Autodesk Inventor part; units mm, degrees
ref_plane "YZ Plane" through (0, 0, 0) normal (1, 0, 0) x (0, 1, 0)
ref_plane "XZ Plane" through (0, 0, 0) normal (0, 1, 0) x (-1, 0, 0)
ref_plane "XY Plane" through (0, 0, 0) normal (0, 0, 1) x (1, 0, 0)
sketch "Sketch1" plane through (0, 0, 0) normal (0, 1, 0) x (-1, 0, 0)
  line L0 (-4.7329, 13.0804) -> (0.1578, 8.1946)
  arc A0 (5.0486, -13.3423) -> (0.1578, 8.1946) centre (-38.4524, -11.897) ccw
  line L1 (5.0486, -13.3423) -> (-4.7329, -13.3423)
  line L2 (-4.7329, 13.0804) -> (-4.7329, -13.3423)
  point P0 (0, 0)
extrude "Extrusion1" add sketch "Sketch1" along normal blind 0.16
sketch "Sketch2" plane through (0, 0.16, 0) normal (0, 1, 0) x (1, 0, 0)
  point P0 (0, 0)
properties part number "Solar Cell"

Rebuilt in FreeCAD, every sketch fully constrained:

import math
import FreeCAD as App
import Part
import Sketcher
Q = App.Units.Quantity

doc = App.newDocument("Part")
params = doc.addObject("Spreadsheet::Sheet", "Params")
for row, (alias, value) in enumerate([
    ("pad1_length", "0.16 mm"),
], start=1):
    params.set(f"A{row}", alias)
    params.set(f"B{row}", "=" + value)
    params.setAlias(f"B{row}", alias)

body = doc.addObject("PartDesign::Body", "Body")

sketch1 = body.newObject("Sketcher::SketchObject", "Sketch")
sketch1.AttachmentSupport = (doc.getObject("XZ_Plane"), [""])
sketch1.MapMode = "FlatFace"
sketch1.addGeometry([
    Part.LineSegment(App.Vector(0, 8, 0), App.Vector(5, 13, 0)),
    Part.LineSegment(App.Vector(5, 13, 0), App.Vector(5, -13, 0)),
    Part.LineSegment(App.Vector(5, -13, 0), App.Vector(-5, -13, 0)),
    Part.ArcOfCircle(Part.Circle(App.Vector(38, -12, 0), App.Vector(0, 0, 1), 44), math.radians(153), math.radians(182)),
], False)
sketch1.addConstraint([
    Sketcher.Constraint("Coincident", 0, 2, 1, 1),
    Sketcher.Constraint("Coincident", 1, 2, 2, 1),
    Sketcher.Constraint("Coincident", 2, 2, 3, 2),
    Sketcher.Constraint("Coincident", 3, 1, 0, 1),
    Sketcher.Constraint("Vertical", 1),
    Sketcher.Constraint("Horizontal", 2),
    Sketcher.Constraint("Radius", 3, Q("43.524 mm")),
    Sketcher.Constraint("DistanceX", 2, 2, 3, 3, Q("43.5 mm")),
    Sketcher.Constraint("Distance", 0, Q("6.913 mm")),
    Sketcher.Constraint("DistanceX", 2, 2, 2, 1, Q("9.7815 mm")),
    Sketcher.Constraint("DistanceY", 1, 2, 1, 1, Q("26.4227 mm")),
    Sketcher.Constraint("DistanceY", 3, 3, -1, 1, Q("11.897 mm")),
    Sketcher.Constraint("DistanceX", -1, 1, 0, 2, Q("4.733 mm")),
])
pad1 = body.newObject("PartDesign::Pad", "Pad")
pad1.Profile = sketch1
pad1.setExpression("Length", "Params.pad1_length")
pad1.Reversed = True

doc.recompute()
